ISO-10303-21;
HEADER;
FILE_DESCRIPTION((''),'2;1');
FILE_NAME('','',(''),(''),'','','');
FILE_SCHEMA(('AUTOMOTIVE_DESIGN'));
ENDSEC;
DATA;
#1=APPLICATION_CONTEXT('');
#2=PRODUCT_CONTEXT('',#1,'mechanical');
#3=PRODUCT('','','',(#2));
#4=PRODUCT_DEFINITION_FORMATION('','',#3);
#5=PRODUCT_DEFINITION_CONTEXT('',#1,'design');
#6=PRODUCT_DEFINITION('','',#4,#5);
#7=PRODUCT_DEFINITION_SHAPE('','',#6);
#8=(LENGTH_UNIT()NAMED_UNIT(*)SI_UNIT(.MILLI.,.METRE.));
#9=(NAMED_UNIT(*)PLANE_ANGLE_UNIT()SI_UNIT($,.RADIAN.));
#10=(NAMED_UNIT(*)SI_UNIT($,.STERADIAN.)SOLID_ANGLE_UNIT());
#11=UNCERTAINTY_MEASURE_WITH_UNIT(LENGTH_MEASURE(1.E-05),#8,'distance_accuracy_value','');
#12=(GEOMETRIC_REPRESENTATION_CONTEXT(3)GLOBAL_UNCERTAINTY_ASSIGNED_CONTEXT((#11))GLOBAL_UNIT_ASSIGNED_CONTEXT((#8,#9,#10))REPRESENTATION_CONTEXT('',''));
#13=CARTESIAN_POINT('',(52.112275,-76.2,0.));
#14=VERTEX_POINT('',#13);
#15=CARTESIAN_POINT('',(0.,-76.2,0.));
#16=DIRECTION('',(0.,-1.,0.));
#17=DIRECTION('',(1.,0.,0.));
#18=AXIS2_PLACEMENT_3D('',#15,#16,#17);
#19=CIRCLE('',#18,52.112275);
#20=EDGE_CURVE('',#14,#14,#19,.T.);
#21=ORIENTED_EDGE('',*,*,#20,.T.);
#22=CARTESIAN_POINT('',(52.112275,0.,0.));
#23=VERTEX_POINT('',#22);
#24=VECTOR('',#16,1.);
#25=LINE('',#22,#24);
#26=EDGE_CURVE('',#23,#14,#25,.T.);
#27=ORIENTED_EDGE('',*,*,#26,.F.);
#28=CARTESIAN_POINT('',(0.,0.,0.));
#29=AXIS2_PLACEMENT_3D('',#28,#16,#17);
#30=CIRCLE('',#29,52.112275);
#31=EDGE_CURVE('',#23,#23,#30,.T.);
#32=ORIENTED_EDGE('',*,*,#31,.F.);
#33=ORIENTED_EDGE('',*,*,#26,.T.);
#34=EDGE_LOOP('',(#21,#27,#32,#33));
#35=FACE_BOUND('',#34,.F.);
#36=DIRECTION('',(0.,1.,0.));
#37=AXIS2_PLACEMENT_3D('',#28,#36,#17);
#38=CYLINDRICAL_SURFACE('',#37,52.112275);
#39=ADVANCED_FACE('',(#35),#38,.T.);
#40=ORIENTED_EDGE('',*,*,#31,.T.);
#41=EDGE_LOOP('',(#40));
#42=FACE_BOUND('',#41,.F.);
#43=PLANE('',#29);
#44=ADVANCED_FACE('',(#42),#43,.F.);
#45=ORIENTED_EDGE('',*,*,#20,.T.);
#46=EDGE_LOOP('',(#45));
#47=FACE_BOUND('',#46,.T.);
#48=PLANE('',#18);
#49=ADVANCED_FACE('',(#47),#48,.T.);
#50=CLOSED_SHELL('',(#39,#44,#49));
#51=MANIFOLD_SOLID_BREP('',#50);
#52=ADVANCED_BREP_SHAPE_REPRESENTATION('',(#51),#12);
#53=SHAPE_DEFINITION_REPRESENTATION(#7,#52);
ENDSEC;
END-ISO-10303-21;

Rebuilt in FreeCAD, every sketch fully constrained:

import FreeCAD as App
import Part
import Sketcher

doc = App.newDocument("Part")
params = doc.addObject("Spreadsheet::Sheet", "Params")
for row, (alias, value) in enumerate([
    ("pad1_length", "3 in"),
    ("pad2_length", "3 in"),
], start=1):
    params.set(f"A{row}", alias)
    params.set(f"B{row}", "=" + value)
    params.setAlias(f"B{row}", alias)

body = doc.addObject("PartDesign::Body", "Body")

# Sketch on XZ plane
sketch1 = body.newObject("Sketcher::SketchObject", "Sketch")
sketch1.AttachmentSupport = (doc.getObject("XZ_Plane"), [""])
sketch1.MapMode = "FlatFace"
sketch1.addGeometry(Part.Circle(App.Vector(0, 0, 0), App.Vector(0, 0, 1), 52), False)
sketch1.addConstraint([
    Sketcher.Constraint("Coincident", 0, 3, -1, 1),
    Sketcher.Constraint("Diameter", 0, 104.22455),
])
pad1 = body.newObject("PartDesign::Pad", "Pad")
pad1.Profile = sketch1
pad1.setExpression("Length", "Params.pad1_length")

# Sketch on XZ plane
sketch2 = body.newObject("Sketcher::SketchObject", "Sketch001")
sketch2.AttachmentSupport = (doc.getObject("XZ_Plane"), [""])
sketch2.MapMode = "FlatFace"
sketch2.addGeometry(Part.Circle(App.Vector(0, 0, 0), App.Vector(0, 0, 1), 50), False)
sketch2.addConstraint([
    Sketcher.Constraint("Coincident", 0, 3, -1, 1),
    Sketcher.Constraint("Diameter", 0, 100.95051),
])
pad2 = body.newObject("PartDesign::Pad", "Pad001")
pad2.Profile = sketch2
pad2.setExpression("Length", "Params.pad2_length")

doc.recompute()
